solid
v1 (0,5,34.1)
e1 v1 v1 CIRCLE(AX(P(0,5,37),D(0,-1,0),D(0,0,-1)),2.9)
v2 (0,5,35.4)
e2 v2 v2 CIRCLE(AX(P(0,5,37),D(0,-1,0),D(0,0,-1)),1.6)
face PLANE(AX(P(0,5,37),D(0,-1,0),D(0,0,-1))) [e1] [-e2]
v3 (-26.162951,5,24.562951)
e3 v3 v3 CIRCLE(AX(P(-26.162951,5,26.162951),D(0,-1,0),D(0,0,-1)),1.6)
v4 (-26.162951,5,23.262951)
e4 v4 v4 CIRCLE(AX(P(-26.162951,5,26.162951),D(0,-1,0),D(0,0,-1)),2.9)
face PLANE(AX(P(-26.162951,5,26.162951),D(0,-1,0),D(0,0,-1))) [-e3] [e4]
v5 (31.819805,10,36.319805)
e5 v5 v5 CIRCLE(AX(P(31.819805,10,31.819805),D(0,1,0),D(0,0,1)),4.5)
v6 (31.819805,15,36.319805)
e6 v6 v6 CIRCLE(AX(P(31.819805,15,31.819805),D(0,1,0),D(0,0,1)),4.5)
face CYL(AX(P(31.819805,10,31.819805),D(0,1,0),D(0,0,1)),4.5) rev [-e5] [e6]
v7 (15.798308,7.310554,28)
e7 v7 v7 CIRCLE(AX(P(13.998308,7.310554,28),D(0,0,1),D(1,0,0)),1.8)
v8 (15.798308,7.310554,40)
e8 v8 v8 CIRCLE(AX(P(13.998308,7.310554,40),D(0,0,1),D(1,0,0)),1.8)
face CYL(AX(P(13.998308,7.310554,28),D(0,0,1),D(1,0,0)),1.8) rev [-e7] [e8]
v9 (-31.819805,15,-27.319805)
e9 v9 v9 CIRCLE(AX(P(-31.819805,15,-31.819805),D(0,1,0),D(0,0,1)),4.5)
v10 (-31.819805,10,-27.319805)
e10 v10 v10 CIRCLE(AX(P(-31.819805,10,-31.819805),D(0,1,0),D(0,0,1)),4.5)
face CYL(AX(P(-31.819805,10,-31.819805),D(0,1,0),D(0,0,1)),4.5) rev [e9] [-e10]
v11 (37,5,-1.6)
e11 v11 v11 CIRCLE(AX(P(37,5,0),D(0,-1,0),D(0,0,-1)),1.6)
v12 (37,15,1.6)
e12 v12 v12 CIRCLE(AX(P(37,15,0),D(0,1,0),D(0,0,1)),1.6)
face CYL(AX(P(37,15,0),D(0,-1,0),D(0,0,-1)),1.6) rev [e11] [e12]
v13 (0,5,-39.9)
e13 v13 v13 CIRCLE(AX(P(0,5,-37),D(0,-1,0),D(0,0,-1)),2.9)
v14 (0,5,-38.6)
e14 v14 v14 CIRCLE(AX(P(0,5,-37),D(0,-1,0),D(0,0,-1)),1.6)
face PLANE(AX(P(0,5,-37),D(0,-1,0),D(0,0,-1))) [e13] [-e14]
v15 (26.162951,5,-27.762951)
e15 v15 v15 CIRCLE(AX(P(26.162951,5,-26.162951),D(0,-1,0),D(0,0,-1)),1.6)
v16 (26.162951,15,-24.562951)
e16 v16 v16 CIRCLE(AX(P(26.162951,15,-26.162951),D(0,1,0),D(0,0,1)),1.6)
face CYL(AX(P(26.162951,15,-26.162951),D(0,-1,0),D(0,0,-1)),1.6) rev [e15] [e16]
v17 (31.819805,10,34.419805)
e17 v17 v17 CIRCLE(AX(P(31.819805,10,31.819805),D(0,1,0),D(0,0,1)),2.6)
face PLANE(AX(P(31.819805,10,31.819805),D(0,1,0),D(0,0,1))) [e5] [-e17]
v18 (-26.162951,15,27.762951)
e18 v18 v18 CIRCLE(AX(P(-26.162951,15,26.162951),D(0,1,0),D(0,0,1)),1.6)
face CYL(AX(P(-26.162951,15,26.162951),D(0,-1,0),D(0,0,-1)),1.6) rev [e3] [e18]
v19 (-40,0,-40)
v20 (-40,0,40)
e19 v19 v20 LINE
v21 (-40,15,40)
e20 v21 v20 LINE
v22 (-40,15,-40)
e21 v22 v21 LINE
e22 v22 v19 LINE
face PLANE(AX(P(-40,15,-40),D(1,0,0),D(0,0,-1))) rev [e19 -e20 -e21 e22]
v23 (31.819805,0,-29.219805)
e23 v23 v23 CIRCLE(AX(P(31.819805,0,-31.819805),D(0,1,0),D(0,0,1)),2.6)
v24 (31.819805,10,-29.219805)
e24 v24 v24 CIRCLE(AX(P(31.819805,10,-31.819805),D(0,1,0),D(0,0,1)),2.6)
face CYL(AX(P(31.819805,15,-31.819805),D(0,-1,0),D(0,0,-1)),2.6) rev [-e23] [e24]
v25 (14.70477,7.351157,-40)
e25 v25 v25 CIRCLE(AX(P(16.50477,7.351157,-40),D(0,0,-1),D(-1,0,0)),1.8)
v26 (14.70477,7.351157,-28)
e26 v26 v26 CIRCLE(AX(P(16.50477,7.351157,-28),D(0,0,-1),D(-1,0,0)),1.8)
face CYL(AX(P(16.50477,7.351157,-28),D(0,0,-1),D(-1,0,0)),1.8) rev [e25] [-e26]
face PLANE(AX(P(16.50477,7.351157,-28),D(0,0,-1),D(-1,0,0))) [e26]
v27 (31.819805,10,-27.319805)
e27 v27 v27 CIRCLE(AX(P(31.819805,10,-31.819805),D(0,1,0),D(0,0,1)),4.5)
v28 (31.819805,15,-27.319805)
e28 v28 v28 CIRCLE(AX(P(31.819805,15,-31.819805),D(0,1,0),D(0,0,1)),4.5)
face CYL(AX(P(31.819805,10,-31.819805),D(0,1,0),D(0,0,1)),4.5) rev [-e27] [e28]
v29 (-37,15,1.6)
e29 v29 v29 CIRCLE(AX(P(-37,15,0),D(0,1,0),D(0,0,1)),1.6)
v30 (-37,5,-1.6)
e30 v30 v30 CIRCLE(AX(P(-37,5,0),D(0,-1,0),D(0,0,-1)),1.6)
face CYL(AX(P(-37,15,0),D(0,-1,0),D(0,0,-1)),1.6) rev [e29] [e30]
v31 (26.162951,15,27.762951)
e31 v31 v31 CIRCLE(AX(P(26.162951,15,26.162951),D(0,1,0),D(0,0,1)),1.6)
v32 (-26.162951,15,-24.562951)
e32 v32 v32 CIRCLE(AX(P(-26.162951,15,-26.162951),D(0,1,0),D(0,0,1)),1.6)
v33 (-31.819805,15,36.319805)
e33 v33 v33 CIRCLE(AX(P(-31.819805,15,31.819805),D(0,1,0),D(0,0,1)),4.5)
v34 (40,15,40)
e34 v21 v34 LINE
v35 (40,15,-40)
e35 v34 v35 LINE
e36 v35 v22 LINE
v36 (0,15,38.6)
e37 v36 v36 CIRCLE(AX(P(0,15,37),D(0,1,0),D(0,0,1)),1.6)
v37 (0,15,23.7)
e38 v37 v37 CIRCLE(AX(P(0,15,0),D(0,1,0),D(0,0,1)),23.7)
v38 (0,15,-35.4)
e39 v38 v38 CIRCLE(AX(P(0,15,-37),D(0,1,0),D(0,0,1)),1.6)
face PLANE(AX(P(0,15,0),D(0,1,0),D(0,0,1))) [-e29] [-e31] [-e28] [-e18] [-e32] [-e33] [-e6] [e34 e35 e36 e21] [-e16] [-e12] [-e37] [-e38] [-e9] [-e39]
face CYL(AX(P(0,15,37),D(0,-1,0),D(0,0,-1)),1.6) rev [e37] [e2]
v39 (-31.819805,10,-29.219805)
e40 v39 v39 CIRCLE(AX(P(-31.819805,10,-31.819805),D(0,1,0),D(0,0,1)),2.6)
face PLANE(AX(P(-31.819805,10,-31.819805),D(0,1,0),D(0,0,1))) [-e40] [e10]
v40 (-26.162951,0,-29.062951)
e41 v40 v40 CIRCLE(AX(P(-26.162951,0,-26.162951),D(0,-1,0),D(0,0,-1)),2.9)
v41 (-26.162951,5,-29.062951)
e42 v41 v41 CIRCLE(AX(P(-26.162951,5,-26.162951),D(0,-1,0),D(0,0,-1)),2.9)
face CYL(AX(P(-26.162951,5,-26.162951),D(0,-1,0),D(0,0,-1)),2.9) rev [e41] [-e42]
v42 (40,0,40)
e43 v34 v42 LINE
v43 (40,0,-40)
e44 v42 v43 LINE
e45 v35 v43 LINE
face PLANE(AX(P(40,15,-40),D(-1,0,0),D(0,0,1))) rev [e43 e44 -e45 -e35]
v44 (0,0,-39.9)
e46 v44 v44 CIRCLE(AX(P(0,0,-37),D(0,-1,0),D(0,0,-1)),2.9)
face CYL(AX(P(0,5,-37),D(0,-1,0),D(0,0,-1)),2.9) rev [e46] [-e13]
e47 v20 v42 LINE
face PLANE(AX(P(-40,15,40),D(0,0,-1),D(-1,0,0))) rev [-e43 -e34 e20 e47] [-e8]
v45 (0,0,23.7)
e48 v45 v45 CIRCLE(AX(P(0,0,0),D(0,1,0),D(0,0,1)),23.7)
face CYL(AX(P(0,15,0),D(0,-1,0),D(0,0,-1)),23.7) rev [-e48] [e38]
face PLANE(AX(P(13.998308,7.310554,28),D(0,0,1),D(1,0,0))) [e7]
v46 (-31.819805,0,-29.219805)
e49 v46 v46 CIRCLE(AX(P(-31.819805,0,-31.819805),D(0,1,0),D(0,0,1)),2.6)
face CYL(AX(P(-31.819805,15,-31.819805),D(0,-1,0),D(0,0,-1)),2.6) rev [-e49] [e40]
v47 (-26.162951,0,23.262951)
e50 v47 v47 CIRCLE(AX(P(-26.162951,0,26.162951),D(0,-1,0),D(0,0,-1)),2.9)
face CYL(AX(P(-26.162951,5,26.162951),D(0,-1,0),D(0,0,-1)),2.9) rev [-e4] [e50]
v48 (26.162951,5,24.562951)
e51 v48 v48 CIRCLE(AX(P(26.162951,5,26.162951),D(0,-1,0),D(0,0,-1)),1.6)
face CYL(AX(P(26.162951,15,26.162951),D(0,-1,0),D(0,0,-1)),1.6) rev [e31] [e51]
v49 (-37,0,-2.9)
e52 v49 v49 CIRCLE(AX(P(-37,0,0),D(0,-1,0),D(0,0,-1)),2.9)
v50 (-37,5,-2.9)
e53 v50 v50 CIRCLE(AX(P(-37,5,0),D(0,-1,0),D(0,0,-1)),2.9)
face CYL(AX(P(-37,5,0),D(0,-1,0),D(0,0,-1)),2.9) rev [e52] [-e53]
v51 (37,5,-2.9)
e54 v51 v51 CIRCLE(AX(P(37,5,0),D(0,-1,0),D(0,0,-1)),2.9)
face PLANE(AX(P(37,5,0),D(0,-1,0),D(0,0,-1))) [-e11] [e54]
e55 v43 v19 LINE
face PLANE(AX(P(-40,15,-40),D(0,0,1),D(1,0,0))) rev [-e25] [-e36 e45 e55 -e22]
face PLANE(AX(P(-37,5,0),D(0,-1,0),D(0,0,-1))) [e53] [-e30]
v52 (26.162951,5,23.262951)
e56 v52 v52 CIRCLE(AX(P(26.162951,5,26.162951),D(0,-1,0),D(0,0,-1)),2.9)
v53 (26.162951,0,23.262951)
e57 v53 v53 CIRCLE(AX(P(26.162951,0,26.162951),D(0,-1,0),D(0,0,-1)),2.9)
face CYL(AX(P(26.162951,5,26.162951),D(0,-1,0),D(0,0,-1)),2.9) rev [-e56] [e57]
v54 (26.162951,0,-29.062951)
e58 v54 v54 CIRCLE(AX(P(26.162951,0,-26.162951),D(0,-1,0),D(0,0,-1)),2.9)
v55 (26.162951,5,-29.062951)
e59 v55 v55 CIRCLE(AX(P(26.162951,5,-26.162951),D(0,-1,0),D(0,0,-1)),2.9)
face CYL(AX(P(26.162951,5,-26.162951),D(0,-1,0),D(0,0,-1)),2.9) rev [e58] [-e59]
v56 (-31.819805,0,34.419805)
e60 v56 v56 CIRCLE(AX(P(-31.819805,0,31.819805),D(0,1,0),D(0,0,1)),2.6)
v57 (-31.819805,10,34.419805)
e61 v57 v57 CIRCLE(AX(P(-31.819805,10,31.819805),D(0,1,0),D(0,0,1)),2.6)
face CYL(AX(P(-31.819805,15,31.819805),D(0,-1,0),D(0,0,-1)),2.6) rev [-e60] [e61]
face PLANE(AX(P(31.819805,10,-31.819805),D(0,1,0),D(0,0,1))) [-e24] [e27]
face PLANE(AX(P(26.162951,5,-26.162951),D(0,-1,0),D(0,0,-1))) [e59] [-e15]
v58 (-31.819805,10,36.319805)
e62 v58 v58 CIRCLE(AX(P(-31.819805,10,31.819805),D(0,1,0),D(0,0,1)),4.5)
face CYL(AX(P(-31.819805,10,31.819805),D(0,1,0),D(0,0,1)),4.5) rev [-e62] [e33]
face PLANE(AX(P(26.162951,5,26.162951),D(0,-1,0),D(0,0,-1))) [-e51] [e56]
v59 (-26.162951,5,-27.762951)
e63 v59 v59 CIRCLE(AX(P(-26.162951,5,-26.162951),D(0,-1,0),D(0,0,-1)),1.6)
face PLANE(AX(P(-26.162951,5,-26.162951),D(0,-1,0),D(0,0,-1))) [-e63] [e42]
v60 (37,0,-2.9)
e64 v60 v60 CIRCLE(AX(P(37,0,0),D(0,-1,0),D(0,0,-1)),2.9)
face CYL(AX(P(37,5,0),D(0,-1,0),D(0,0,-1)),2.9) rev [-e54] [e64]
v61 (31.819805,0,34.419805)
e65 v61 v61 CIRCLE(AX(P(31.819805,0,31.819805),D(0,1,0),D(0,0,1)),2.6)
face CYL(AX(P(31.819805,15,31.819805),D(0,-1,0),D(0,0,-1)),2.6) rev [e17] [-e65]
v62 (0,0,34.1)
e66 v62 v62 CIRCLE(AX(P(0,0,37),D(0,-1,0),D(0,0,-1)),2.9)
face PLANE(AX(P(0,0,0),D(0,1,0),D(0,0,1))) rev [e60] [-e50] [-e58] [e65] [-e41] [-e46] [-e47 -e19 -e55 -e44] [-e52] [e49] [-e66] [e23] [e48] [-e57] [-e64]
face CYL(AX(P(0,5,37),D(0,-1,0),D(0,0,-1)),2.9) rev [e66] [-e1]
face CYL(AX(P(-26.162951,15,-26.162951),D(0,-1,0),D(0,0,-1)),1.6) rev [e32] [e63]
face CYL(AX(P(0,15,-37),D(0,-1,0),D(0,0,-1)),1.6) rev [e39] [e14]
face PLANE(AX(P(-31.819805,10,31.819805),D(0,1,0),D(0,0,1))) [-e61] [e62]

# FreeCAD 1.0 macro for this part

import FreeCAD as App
import Part
import Sketcher
Q = App.Units.Quantity


def add_polygon(sketch, points):
    """Adds a closed chain of lines whose ends are joined by coincident constraints."""
    first, n = sketch.GeometryCount, len(points)
    for a, b in zip(points, points[1:] + points[:1]):
        sketch.addGeometry(Part.LineSegment(App.Vector(*a, 0), App.Vector(*b, 0)), False)
    for i in range(n):
        sketch.addConstraint(Sketcher.Constraint("Coincident", first + i, 2, first + (i + 1) % n, 1))

doc = App.newDocument("Part")
body = doc.addObject("PartDesign::Body", "Body")

# Sketch on XZ plane
sketch1 = body.newObject("Sketcher::SketchObject", "Sketch")
sketch1.AttachmentSupport = (doc.getObject("XZ_Plane"), [""])
sketch1.MapMode = "FlatFace"
add_polygon(sketch1, [(-40, -40), (-40, 40), (40, 40), (40, -40)])  # lines 0-3
sketch1.addGeometry(Part.Circle(App.Vector(-31.8, 31.8, 0), App.Vector(0, 0, 1), 2.6), False)  # 4
sketch1.addGeometry(Part.Circle(App.Vector(-26.2, 26.2, 0), App.Vector(0, 0, 1), 1.6), False)  # 5
sketch1.addGeometry(Part.Circle(App.Vector(0, 37, 0), App.Vector(0, 0, 1), 1.6), False)  # 6
sketch1.addGeometry(Part.Circle(App.Vector(31.8, 31.8, 0), App.Vector(0, 0, 1), 2.6), False)  # 7
sketch1.addGeometry(Part.Circle(App.Vector(26.2, 26.2, 0), App.Vector(0, 0, 1), 1.6), False)  # 8
sketch1.addGeometry(Part.Circle(App.Vector(-37, 0, 0), App.Vector(0, 0, 1), 1.6), False)  # 9
sketch1.addGeometry(Part.Circle(App.Vector(-26.2, -26.2, 0), App.Vector(0, 0, 1), 1.6), False)  # 10
sketch1.addGeometry(Part.Circle(App.Vector(-31.8, -31.8, 0), App.Vector(0, 0, 1), 2.6), False)  # 11
sketch1.addGeometry(Part.Circle(App.Vector(0, 0, 0), App.Vector(0, 0, 1), 23.7), False)  # 12
sketch1.addGeometry(Part.Circle(App.Vector(37, 0, 0), App.Vector(0, 0, 1), 1.6), False)  # 13
sketch1.addGeometry(Part.Circle(App.Vector(0, -37, 0), App.Vector(0, 0, 1), 1.6), False)  # 14
sketch1.addGeometry(Part.Circle(App.Vector(26.2, -26.2, 0), App.Vector(0, 0, 1), 1.6), False)  # 15
sketch1.addGeometry(Part.Circle(App.Vector(31.8, -31.8, 0), App.Vector(0, 0, 1), 2.6), False)  # 16
sketch1.addConstraint([
    Sketcher.Constraint("Vertical", 0),
    Sketcher.Constraint("Horizontal", 1),
    Sketcher.Constraint("Vertical", 2),
    Sketcher.Constraint("Horizontal", 3),
    Sketcher.Constraint("Coincident", 12, 3, -1, 1),
    Sketcher.Constraint("Equal", 5, 6),
    Sketcher.Constraint("Equal", 4, 7),
    Sketcher.Constraint("Equal", 6, 8),
    Sketcher.Constraint("Equal", 8, 9),
    Sketcher.Constraint("Equal", 9, 10),
    Sketcher.Constraint("Equal", 7, 11),
    Sketcher.Constraint("Equal", 10, 13),
    Sketcher.Constraint("Equal", 13, 14),
    Sketcher.Constraint("Equal", 14, 15),
    Sketcher.Constraint("Equal", 11, 16),
    Sketcher.Constraint("Symmetric", 8, 3, 10, 3, -1, 1),
    Sketcher.Constraint("Symmetric", 7, 3, 11, 3, -1, 1),
    Sketcher.Constraint("Symmetric", 9, 3, 13, 3, -1, 1),
    Sketcher.Constraint("Symmetric", 6, 3, 14, 3, -1, 1),
    Sketcher.Constraint("Symmetric", 5, 3, 15, 3, -1, 1),
    Sketcher.Constraint("Symmetric", 4, 3, 16, 3, -1, 1),
    Sketcher.Constraint("Symmetric", 0, 2, 2, 2, -1, 1),
    Sketcher.Constraint("Symmetric", 4, 3, 7, 3, -2),
    Sketcher.Constraint("Symmetric", 5, 3, 8, 3, -2),
    Sketcher.Constraint("PointOnObject", 6, 3, -2),
    Sketcher.Constraint("PointOnObject", 9, 3, -1),
    Sketcher.Constraint("Equal", 3, 0),
    Sketcher.Constraint("Diameter", 4, Q("5.2 mm")),
    Sketcher.Constraint("Diameter", 5, Q("3.2 mm")),
    Sketcher.Constraint("Diameter", 12, Q("47.4 mm")),
    Sketcher.Constraint("DistanceX", 1, 1, 1, 2, Q("80 mm")),
    Sketcher.Constraint("DistanceY", -1, 1, 6, 3, Q("37 mm")),
    Sketcher.Constraint("DistanceX", 9, 3, -1, 1, Q("37 mm")),
    Sketcher.Constraint("DistanceX", 5, 3, 8, 3, Q("52.325902 mm")),
    Sketcher.Constraint("DistanceY", 10, 3, 5, 3, Q("52.325902 mm")),
    Sketcher.Constraint("DistanceX", 4, 3, 7, 3, Q("63.63961 mm")),
    Sketcher.Constraint("DistanceY", 11, 3, 4, 3, Q("63.63961 mm")),
])
pad1 = body.newObject("PartDesign::Pad", "Pad")
pad1.Profile = sketch1
pad1.Length = 15
pad1.Reversed = True

# Sketch on XZ plane
sketch2 = body.newObject("Sketcher::SketchObject", "Sketch001")
sketch2.AttachmentSupport = (doc.getObject("XZ_Plane"), [""])
sketch2.MapMode = "FlatFace"
sketch2.addGeometry([
    Part.Circle(App.Vector(0, 37, 0), App.Vector(0, 0, 1), 2.9),  # 0
    Part.Circle(App.Vector(26.2, 26.2, 0), App.Vector(0, 0, 1), 2.9),  # 1
    Part.Circle(App.Vector(37, 0, 0), App.Vector(0, 0, 1), 2.9),  # 2
    Part.Circle(App.Vector(26.2, -26.2, 0), App.Vector(0, 0, 1), 2.9),  # 3
    Part.Circle(App.Vector(0, -37, 0), App.Vector(0, 0, 1), 2.9),  # 4
    Part.Circle(App.Vector(-26.2, -26.2, 0), App.Vector(0, 0, 1), 2.9),  # 5
    Part.Circle(App.Vector(-37, 0, 0), App.Vector(0, 0, 1), 2.9),  # 6
    Part.Circle(App.Vector(-26.2, 26.2, 0), App.Vector(0, 0, 1), 2.9),  # 7
], False)
sketch2.addConstraint([
    Sketcher.Constraint("Equal", 0, 1),
    Sketcher.Constraint("Equal", 1, 2),
    Sketcher.Constraint("Equal", 2, 3),
    Sketcher.Constraint("Equal", 3, 4),
    Sketcher.Constraint("Equal", 4, 5),
    Sketcher.Constraint("Equal", 5, 6),
    Sketcher.Constraint("Equal", 6, 7),
    Sketcher.Constraint("Symmetric", 0, 3, 4, 3, -1, 1),
    Sketcher.Constraint("Symmetric", 1, 3, 5, 3, -1, 1),
    Sketcher.Constraint("Symmetric", 2, 3, 6, 3, -1, 1),
    Sketcher.Constraint("Symmetric", 3, 3, 7, 3, -1, 1),
    Sketcher.Constraint("Symmetric", 3, 3, 5, 3, -2),
    Sketcher.Constraint("PointOnObject", 0, 3, -2),
    Sketcher.Constraint("PointOnObject", 2, 3, -1),
    Sketcher.Constraint("Diameter", 0, Q("5.8 mm")),
    Sketcher.Constraint("DistanceY", -1, 1, 0, 3, Q("37 mm")),
    Sketcher.Constraint("DistanceX", -1, 1, 2, 3, Q("37 mm")),
    Sketcher.Constraint("DistanceY", 3, 3, 1, 3, Q("52.325902 mm")),
    Sketcher.Constraint("DistanceX", 5, 3, 3, 3, Q("52.325902 mm")),
])
pocket1 = body.newObject("PartDesign::Pocket", "Pocket")
pocket1.Profile = sketch2
pocket1.Length = 5

# Sketch on XZ plane
sketch3 = body.newObject("Sketcher::SketchObject", "Sketch002")
sketch3.AttachmentSupport = (doc.getObject("XZ_Plane"), [""])
sketch3.MapMode = "FlatFace"
sketch3.AttachmentOffset = App.Placement(App.Vector(0, 0, -15), App.Rotation())
sketch3.addGeometry([
    Part.Circle(App.Vector(-31.8, -31.8, 0), App.Vector(0, 0, 1), 4.5),
    Part.Circle(App.Vector(31.8, -31.8, 0), App.Vector(0, 0, 1), 4.5),
    Part.Circle(App.Vector(31.8, 31.8, 0), App.Vector(0, 0, 1), 4.5),
    Part.Circle(App.Vector(-31.8, 31.8, 0), App.Vector(0, 0, 1), 4.5),
], False)
sketch3.addConstraint([
    Sketcher.Constraint("Equal", 0, 1),
    Sketcher.Constraint("Equal", 1, 2),
    Sketcher.Constraint("Equal", 2, 3),
    Sketcher.Constraint("Symmetric", 0, 3, 2, 3, -1, 1),
    Sketcher.Constraint("Symmetric", 1, 3, 3, 3, -1, 1),
    Sketcher.Constraint("Symmetric", 0, 3, 1, 3, -2),
    Sketcher.Constraint("Diameter", 0, Q("9 mm")),
    Sketcher.Constraint("DistanceX", 0, 3, 1, 3, Q("63.63961 mm")),
    Sketcher.Constraint("DistanceY", 1, 3, 2, 3, Q("63.63961 mm")),
])
pocket2 = body.newObject("PartDesign::Pocket", "Pocket001")
pocket2.Profile = sketch3
pocket2.Length = 5
pocket2.Reversed = True

# Sketch on XY plane
sketch4 = body.newObject("Sketcher::SketchObject", "Sketch003")
sketch4.AttachmentSupport = (doc.getObject("XY_Plane"), [""])
sketch4.MapMode = "FlatFace"
sketch4.AttachmentOffset = App.Placement(App.Vector(0, 0, 40), App.Rotation())
sketch4.addGeometry(Part.Circle(App.Vector(14, 7.3, 0), App.Vector(0, 0, 1), 1.8), False)
sketch4.addConstraint([
    Sketcher.Constraint("Diameter", 0, Q("3.6 mm")),
    Sketcher.Constraint("DistanceX", -1, 1, 0, 3, Q("13.998308 mm")),
    Sketcher.Constraint("DistanceY", -1, 1, 0, 3, Q("7.310554 mm")),
])
pocket3 = body.newObject("PartDesign::Pocket", "Pocket002")
pocket3.Profile = sketch4
pocket3.Length = 12

# Sketch on XY plane
sketch5 = body.newObject("Sketcher::SketchObject", "Sketch004")
sketch5.AttachmentSupport = (doc.getObject("XY_Plane"), [""])
sketch5.MapMode = "FlatFace"
sketch5.AttachmentOffset = App.Placement(App.Vector(0, 0, -40), App.Rotation())
sketch5.addGeometry(Part.Circle(App.Vector(16.5, 7.4, 0), App.Vector(0, 0, 1), 1.8), False)
sketch5.addConstraint([
    Sketcher.Constraint("Diameter", 0, Q("3.6 mm")),
    Sketcher.Constraint("DistanceX", -1, 1, 0, 3, Q("16.50477 mm")),
    Sketcher.Constraint("DistanceY", -1, 1, 0, 3, Q("7.351157 mm")),
])
pocket4 = body.newObject("PartDesign::Pocket", "Pocket003")
pocket4.Profile = sketch5
pocket4.Length = 12
pocket4.Reversed = True

doc.recompute()
